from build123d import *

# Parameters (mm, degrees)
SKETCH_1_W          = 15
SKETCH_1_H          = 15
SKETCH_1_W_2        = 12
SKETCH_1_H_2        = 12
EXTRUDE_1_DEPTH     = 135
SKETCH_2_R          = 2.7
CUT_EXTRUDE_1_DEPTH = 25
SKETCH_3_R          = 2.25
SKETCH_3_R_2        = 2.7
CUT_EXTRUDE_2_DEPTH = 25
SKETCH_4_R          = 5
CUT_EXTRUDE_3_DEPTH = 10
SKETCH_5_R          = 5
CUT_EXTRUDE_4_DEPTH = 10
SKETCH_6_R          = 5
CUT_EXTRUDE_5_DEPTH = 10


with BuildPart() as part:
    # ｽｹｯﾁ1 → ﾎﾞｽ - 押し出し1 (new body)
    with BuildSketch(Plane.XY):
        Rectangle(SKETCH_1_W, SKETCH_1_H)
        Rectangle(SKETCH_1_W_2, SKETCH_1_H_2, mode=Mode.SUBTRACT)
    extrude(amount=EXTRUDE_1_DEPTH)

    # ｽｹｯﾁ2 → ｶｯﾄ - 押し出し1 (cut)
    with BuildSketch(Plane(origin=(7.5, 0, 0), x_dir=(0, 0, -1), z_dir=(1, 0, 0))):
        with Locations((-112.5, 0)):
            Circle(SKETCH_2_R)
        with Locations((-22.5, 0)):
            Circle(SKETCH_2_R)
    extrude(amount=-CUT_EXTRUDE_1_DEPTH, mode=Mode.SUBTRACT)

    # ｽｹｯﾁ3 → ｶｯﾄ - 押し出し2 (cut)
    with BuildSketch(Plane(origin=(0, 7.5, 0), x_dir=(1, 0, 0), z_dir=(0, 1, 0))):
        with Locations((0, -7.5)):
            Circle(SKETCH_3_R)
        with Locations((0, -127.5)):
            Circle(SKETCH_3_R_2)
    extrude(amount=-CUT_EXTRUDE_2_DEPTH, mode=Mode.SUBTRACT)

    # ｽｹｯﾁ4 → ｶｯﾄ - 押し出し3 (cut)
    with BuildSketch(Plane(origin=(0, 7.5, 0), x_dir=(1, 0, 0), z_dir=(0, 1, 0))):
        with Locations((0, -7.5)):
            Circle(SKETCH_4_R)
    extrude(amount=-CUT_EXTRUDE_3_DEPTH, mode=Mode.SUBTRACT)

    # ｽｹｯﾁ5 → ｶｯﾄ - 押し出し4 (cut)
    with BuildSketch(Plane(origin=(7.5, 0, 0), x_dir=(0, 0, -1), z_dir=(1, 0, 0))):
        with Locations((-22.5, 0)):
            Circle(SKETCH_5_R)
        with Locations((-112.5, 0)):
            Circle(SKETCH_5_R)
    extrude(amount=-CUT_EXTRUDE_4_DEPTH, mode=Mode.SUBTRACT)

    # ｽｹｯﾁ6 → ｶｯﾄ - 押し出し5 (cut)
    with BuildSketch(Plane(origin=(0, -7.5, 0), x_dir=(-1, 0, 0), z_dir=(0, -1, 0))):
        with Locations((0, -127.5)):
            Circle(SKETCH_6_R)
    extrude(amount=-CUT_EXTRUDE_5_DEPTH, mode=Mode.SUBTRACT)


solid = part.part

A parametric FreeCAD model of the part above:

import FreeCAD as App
import Part
import Sketcher
from FreeCAD import Vector
Q = App.Units.Quantity

doc = App.newDocument("Part")
params = doc.addObject("Spreadsheet::Sheet", "Params")
for row, (alias, value) in enumerate([
    ("sketch1_width", "15 mm"),
    ("sketch1_width2", "12 mm"),
    ("pad1_length", "135 mm"),
    ("sketch2_diameter", "5.4 mm"),
    ("pocket1_length", "25 mm"),
    ("sketch3_diameter", "4.5 mm"),
    ("sketch3_diameter2", "5.4 mm"),
    ("pocket2_length", "25 mm"),
    ("sketch4_diameter", "10 mm"),
    ("pocket3_length", "10 mm"),
    ("sketch5_diameter", "10 mm"),
    ("pocket4_length", "10 mm"),
    ("sketch6_diameter", "10 mm"),
    ("pocket5_length", "10 mm"),
], start=1):
    params.set(f"A{row}", alias)
    params.set(f"B{row}", "=" + value)
    params.setAlias(f"B{row}", alias)

body = doc.addObject("PartDesign::Body", "Body")

# Sketch on XY plane
sketch1 = body.newObject("Sketcher::SketchObject", "Sketch")
sketch1.AttachmentSupport = (doc.getObject("XY_Plane"), [""])
sketch1.MapMode = "FlatFace"
sketch1.addGeometry(Part.LineSegment(Vector(-8, 8, 0), Vector(-8, -8, 0)), False)
sketch1.addGeometry(Part.LineSegment(Vector(-8, -8, 0), Vector(8, -8, 0)), False)
sketch1.addGeometry(Part.LineSegment(Vector(8, -8, 0), Vector(8, 8, 0)), False)
sketch1.addGeometry(Part.LineSegment(Vector(8, 8, 0), Vector(-8, 8, 0)), False)
sketch1.addGeometry(Part.LineSegment(Vector(6, -6, 0), Vector(-6, -6, 0)), False)
sketch1.addGeometry(Part.LineSegment(Vector(-6, -6, 0), Vector(-6, 6, 0)), False)
sketch1.addGeometry(Part.LineSegment(Vector(-6, 6, 0), Vector(6, 6, 0)), False)
sketch1.addGeometry(Part.LineSegment(Vector(6, 6, 0), Vector(6, -6, 0)), False)
sketch1.addConstraint(Sketcher.Constraint("Coincident", 0, 2, 1, 1))
sketch1.addConstraint(Sketcher.Constraint("Coincident", 1, 2, 2, 1))
sketch1.addConstraint(Sketcher.Constraint("Coincident", 2, 2, 3, 1))
sketch1.addConstraint(Sketcher.Constraint("Coincident", 3, 2, 0, 1))
sketch1.addConstraint(Sketcher.Constraint("Coincident", 4, 2, 5, 1))
sketch1.addConstraint(Sketcher.Constraint("Coincident", 5, 2, 6, 1))
sketch1.addConstraint(Sketcher.Constraint("Coincident", 6, 2, 7, 1))
sketch1.addConstraint(Sketcher.Constraint("Coincident", 7, 2, 4, 1))
sketch1.addConstraint(Sketcher.Constraint("Vertical", 0))
sketch1.addConstraint(Sketcher.Constraint("Horizontal", 1))
sketch1.addConstraint(Sketcher.Constraint("Vertical", 2))
sketch1.addConstraint(Sketcher.Constraint("Horizontal", 3))
sketch1.addConstraint(Sketcher.Constraint("Horizontal", 4))
sketch1.addConstraint(Sketcher.Constraint("Vertical", 5))
sketch1.addConstraint(Sketcher.Constraint("Horizontal", 6))
sketch1.addConstraint(Sketcher.Constraint("Vertical", 7))
sketch1.addConstraint(Sketcher.Constraint("Symmetric", 0, 2, 2, 2, -1, 1))
sketch1.addConstraint(Sketcher.Constraint("Symmetric", 4, 2, 6, 2, -1, 1))
sketch1.addConstraint(Sketcher.Constraint("Equal", 3, 0))
sketch1.addConstraint(Sketcher.Constraint("Equal", 6, 5))
sketch1.addConstraint(Sketcher.Constraint("DistanceX", 1, 1, 1, 2, Q("15 mm")))
sketch1.addConstraint(Sketcher.Constraint("DistanceX", 4, 2, 4, 1, Q("12 mm")))
sketch1.setExpression("Constraints[20]", "Params.sketch1_width")
sketch1.setExpression("Constraints[21]", "Params.sketch1_width2")
pad1 = body.newObject("PartDesign::Pad", "Pad")
pad1.Profile = sketch1
pad1.setExpression("Length", "Params.pad1_length")

# Sketch on YZ plane
sketch2 = body.newObject("Sketcher::SketchObject", "Sketch001")
sketch2.AttachmentSupport = (doc.getObject("YZ_Plane"), [""])
sketch2.MapMode = "FlatFace"
sketch2.AttachmentOffset = App.Placement(Vector(0, 0, 7.5), App.Rotation())
sketch2.addGeometry(Part.Circle(Vector(0, 112.5, 0), Vector(0, 0, 1), 2.7), False)
sketch2.addGeometry(Part.Circle(Vector(0, 22.5, 0), Vector(0, 0, 1), 2.7), False)
sketch2.addConstraint(Sketcher.Constraint("Equal", 0, 1))
sketch2.addConstraint(Sketcher.Constraint("PointOnObject", 0, 3, -2))
sketch2.addConstraint(Sketcher.Constraint("PointOnObject", 1, 3, -2))
sketch2.addConstraint(Sketcher.Constraint("Diameter", 0, Q("5.4 mm")))
sketch2.addConstraint(Sketcher.Constraint("DistanceY", 1, 3, 0, 3, Q("90 mm")))
sketch2.addConstraint(Sketcher.Constraint("DistanceY", -1, 1, 0, 3, Q("112.5 mm")))
sketch2.setExpression("Constraints[3]", "Params.sketch2_diameter")
pocket1 = body.newObject("PartDesign::Pocket", "Pocket")
pocket1.Profile = sketch2
pocket1.setExpression("Length", "Params.pocket1_length")

# Sketch on XZ plane
sketch3 = body.newObject("Sketcher::SketchObject", "Sketch002")
sketch3.AttachmentSupport = (doc.getObject("XZ_Plane"), [""])
sketch3.MapMode = "FlatFace"
sketch3.AttachmentOffset = App.Placement(Vector(0, 0, -7.5), App.Rotation())
sketch3.addGeometry(Part.Circle(Vector(0, 7.5, 0), Vector(0, 0, 1), 2.2), False)
sketch3.addGeometry(Part.Circle(Vector(0, 127.5, 0), Vector(0, 0, 1), 2.7), False)
sketch3.addConstraint(Sketcher.Constraint("PointOnObject", 0, 3, -2))
sketch3.addConstraint(Sketcher.Constraint("PointOnObject", 1, 3, -2))
sketch3.addConstraint(Sketcher.Constraint("Diameter", 0, Q("4.5 mm")))
sketch3.addConstraint(Sketcher.Constraint("Diameter", 1, Q("5.4 mm")))
sketch3.addConstraint(Sketcher.Constraint("DistanceY", 0, 3, 1, 3, Q("120 mm")))
sketch3.addConstraint(Sketcher.Constraint("DistanceY", -1, 1, 0, 3, Q("7.5 mm")))
sketch3.setExpression("Constraints[2]", "Params.sketch3_diameter")
sketch3.setExpression("Constraints[3]", "Params.sketch3_diameter2")
pocket2 = body.newObject("PartDesign::Pocket", "Pocket001")
pocket2.Profile = sketch3
pocket2.setExpression("Length", "Params.pocket2_length")
pocket2.Reversed = True

# Sketch on XZ plane
sketch4 = body.newObject("Sketcher::SketchObject", "Sketch003")
sketch4.AttachmentSupport = (doc.getObject("XZ_Plane"), [""])
sketch4.MapMode = "FlatFace"
sketch4.AttachmentOffset = App.Placement(Vector(0, 0, -7.5), App.Rotation())
sketch4.addGeometry(Part.Circle(Vector(0, 8, 0), Vector(0, 0, 1), 5), False)
sketch4.addConstraint(Sketcher.Constraint("PointOnObject", 0, 3, -2))
sketch4.addConstraint(Sketcher.Constraint("Diameter", 0, Q("10 mm")))
sketch4.addConstraint(Sketcher.Constraint("DistanceY", -1, 1, 0, 3, Q("7.5 mm")))
sketch4.setExpression("Constraints[1]", "Params.sketch4_diameter")
pocket3 = body.newObject("PartDesign::Pocket", "Pocket002")
pocket3.Profile = sketch4
pocket3.setExpression("Length", "Params.pocket3_length")
pocket3.Reversed = True

# Sketch on YZ plane
sketch5 = body.newObject("Sketcher::SketchObject", "Sketch004")
sketch5.AttachmentSupport = (doc.getObject("YZ_Plane"), [""])
sketch5.MapMode = "FlatFace"
sketch5.AttachmentOffset = App.Placement(Vector(0, 0, 7.5), App.Rotation())
sketch5.addGeometry(Part.Circle(Vector(0, 22, 0), Vector(0, 0, 1), 5), False)
sketch5.addGeometry(Part.Circle(Vector(0, 112, 0), Vector(0, 0, 1), 5), False)
sketch5.addConstraint(Sketcher.Constraint("Equal", 0, 1))
sketch5.addConstraint(Sketcher.Constraint("PointOnObject", 0, 3, -2))
sketch5.addConstraint(Sketcher.Constraint("PointOnObject", 1, 3, -2))
sketch5.addConstraint(Sketcher.Constraint("Diameter", 0, Q("10 mm")))
sketch5.addConstraint(Sketcher.Constraint("DistanceY", 0, 3, 1, 3, Q("90 mm")))
sketch5.addConstraint(Sketcher.Constraint("DistanceY", -1, 1, 0, 3, Q("22.5 mm")))
sketch5.setExpression("Constraints[3]", "Params.sketch5_diameter")
pocket4 = body.newObject("PartDesign::Pocket", "Pocket003")
pocket4.Profile = sketch5
pocket4.setExpression("Length", "Params.pocket4_length")

# Sketch on XZ plane
sketch6 = body.newObject("Sketcher::SketchObject", "Sketch005")
sketch6.AttachmentSupport = (doc.getObject("XZ_Plane"), [""])
sketch6.MapMode = "FlatFace"
sketch6.AttachmentOffset = App.Placement(Vector(0, 0, 7.5), App.Rotation())
sketch6.addGeometry(Part.Circle(Vector(0, 128, 0), Vector(0, 0, 1), 5), False)
sketch6.addConstraint(Sketcher.Constraint("PointOnObject", 0, 3, -2))
sketch6.addConstraint(Sketcher.Constraint("Diameter", 0, Q("10 mm")))
sketch6.addConstraint(Sketcher.Constraint("DistanceY", -1, 1, 0, 3, Q("127.5 mm")))
sketch6.setExpression("Constraints[1]", "Params.sketch6_diameter")
pocket5 = body.newObject("PartDesign::Pocket", "Pocket004")
pocket5.Profile = sketch6
pocket5.setExpression("Length", "Params.pocket5_length")

doc.recompute()
